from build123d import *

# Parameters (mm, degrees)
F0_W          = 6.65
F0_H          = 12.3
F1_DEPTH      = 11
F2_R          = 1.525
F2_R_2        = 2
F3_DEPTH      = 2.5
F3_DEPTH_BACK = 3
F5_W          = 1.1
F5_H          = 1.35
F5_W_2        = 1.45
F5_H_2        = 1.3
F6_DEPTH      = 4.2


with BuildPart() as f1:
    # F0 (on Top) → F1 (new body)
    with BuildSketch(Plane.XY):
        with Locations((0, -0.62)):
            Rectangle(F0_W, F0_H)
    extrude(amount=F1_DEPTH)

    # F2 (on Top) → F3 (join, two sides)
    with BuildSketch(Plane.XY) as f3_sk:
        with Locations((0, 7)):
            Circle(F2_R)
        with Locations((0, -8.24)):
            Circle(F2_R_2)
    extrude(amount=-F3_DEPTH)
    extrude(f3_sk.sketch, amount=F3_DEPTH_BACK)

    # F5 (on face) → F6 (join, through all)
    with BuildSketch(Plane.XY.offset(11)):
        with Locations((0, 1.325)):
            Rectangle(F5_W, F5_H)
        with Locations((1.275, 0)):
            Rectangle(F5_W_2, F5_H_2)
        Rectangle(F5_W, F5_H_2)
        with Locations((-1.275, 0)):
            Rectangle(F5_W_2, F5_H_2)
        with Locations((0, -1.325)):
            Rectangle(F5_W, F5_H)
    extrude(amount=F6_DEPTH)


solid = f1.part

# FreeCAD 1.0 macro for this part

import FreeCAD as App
import Part
import Sketcher
from FreeCAD import Vector

doc = App.newDocument("Part")
body = doc.addObject("PartDesign::Body", "Body")

# Sketch on XY plane
sketch1 = body.newObject("Sketcher::SketchObject", "Sketch")
sketch1.AttachmentSupport = (doc.getObject("XY_Plane"), [""])
sketch1.MapMode = "FlatFace"
sketch1.addGeometry([
    Part.LineSegment(Vector(-3, 6, 0), Vector(-3, -7, 0)),
    Part.LineSegment(Vector(-3, -7, 0), Vector(3, -7, 0)),
    Part.LineSegment(Vector(3, -7, 0), Vector(3, 6, 0)),
    Part.LineSegment(Vector(3, 6, 0), Vector(-3, 6, 0)),
], False)
sketch1.addConstraint([
    Sketcher.Constraint("Coincident", 0, 2, 1, 1),
    Sketcher.Constraint("Coincident", 1, 2, 2, 1),
    Sketcher.Constraint("Coincident", 2, 2, 3, 1),
    Sketcher.Constraint("Coincident", 3, 2, 0, 1),
    Sketcher.Constraint("Vertical", 0),
    Sketcher.Constraint("Horizontal", 1),
    Sketcher.Constraint("Vertical", 2),
    Sketcher.Constraint("Horizontal", 3),
    Sketcher.Constraint("DistanceY", 0, 2, 0, 1, 12.3),
    Sketcher.Constraint("DistanceX", 1, 1, 1, 2, 6.65),
    Sketcher.Constraint("DistanceY", 0, 2, -1, 1, 6.77),
    Sketcher.Constraint("DistanceX", 0, 2, -1, 1, 3.325),
])
pad1 = body.newObject("PartDesign::Pad", "Pad")
pad1.Profile = sketch1
pad1.Length = 11

# Sketch on XY plane
sketch2 = body.newObject("Sketcher::SketchObject", "Sketch001")
sketch2.AttachmentSupport = (doc.getObject("XY_Plane"), [""])
sketch2.MapMode = "FlatFace"
sketch2.addGeometry([
    Part.Circle(Vector(0, 7, 0), Vector(0, 0, 1), 1.5),
    Part.Circle(Vector(0, -8.2, 0), Vector(0, 0, 1), 2),
], False)
sketch2.addConstraint([
    Sketcher.Constraint("PointOnObject", 0, 3, -2),
    Sketcher.Constraint("PointOnObject", 1, 3, -2),
    Sketcher.Constraint("Diameter", 1, 4.0),
    Sketcher.Constraint("Diameter", 0, 3.05),
    Sketcher.Constraint("DistanceY", -1, 1, 0, 3, 7.0),
    Sketcher.Constraint("DistanceY", 1, 3, -1, 1, 8.24),
])
pad2 = body.newObject("PartDesign::Pad", "Pad001")
pad2.Profile = sketch2
pad2.Type = "TwoLengths"
pad2.Length = 2.5
pad2.Length2 = 3
pad2.Reversed = True

# Sketch on XY plane
sketch3 = body.newObject("Sketcher::SketchObject", "Sketch002")
sketch3.AttachmentSupport = (doc.getObject("XY_Plane"), [""])
sketch3.MapMode = "FlatFace"
sketch3.AttachmentOffset = App.Placement(Vector(0, 0, 11), App.Rotation())
sketch3.addGeometry([
    Part.LineSegment(Vector(-0.6, 2, 0), Vector(-0.6, 0.7, 0)),  # 0
    Part.LineSegment(Vector(-0.6, 0.7, 0), Vector(-2, 0.7, 0)),  # 1
    Part.LineSegment(Vector(-2, 0.7, 0), Vector(-2, -0.7, 0)),  # 2
    Part.LineSegment(Vector(-2, -0.7, 0), Vector(-0.6, -0.7, 0)),  # 3
    Part.LineSegment(Vector(-0.6, -0.7, 0), Vector(-0.6, -2, 0)),  # 4
    Part.LineSegment(Vector(-0.6, -2, 0), Vector(0.6, -2, 0)),  # 5
    Part.LineSegment(Vector(0.6, -2, 0), Vector(0.6, -0.7, 0)),  # 6
    Part.LineSegment(Vector(0.6, -0.7, 0), Vector(2, -0.7, 0)),  # 7
    Part.LineSegment(Vector(2, -0.7, 0), Vector(2, 0.7, 0)),  # 8
    Part.LineSegment(Vector(2, 0.7, 0), Vector(0.6, 0.7, 0)),  # 9
    Part.LineSegment(Vector(0.6, 0.7, 0), Vector(0.6, 2, 0)),  # 10
    Part.LineSegment(Vector(0.6, 2, 0), Vector(-0.6, 2, 0)),  # 11
], False)
sketch3.addConstraint([
    Sketcher.Constraint("Coincident", 0, 2, 1, 1),
    Sketcher.Constraint("Coincident", 1, 2, 2, 1),
    Sketcher.Constraint("Coincident", 2, 2, 3, 1),
    Sketcher.Constraint("Coincident", 3, 2, 4, 1),
    Sketcher.Constraint("Coincident", 4, 2, 5, 1),
    Sketcher.Constraint("Coincident", 5, 2, 6, 1),
    Sketcher.Constraint("Coincident", 6, 2, 7, 1),
    Sketcher.Constraint("Coincident", 7, 2, 8, 1),
    Sketcher.Constraint("Coincident", 8, 2, 9, 1),
    Sketcher.Constraint("Coincident", 9, 2, 10, 1),
    Sketcher.Constraint("Coincident", 10, 2, 11, 1),
    Sketcher.Constraint("Coincident", 11, 2, 0, 1),
    Sketcher.Constraint("Vertical", 0),
    Sketcher.Constraint("Horizontal", 1),
    Sketcher.Constraint("Vertical", 2),
    Sketcher.Constraint("Horizontal", 3),
    Sketcher.Constraint("Vertical", 4),
    Sketcher.Constraint("Horizontal", 5),
    Sketcher.Constraint("Vertical", 6),
    Sketcher.Constraint("Horizontal", 7),
    Sketcher.Constraint("Vertical", 8),
    Sketcher.Constraint("Horizontal", 9),
    Sketcher.Constraint("Vertical", 10),
    Sketcher.Constraint("Horizontal", 11),
    Sketcher.Constraint("Symmetric", 0, 2, 6, 2, -1, 1),
    Sketcher.Constraint("Symmetric", 2, 2, 8, 2, -1, 1),
    Sketcher.Constraint("Symmetric", 4, 2, 10, 2, -1, 1),
    Sketcher.Constraint("Symmetric", 3, 2, 6, 2, -2),
    Sketcher.Constraint("DistanceX", 5, 1, 5, 2, 1.1),
    Sketcher.Constraint("DistanceY", 2, 2, 2, 1, 1.3),
    Sketcher.Constraint("DistanceX", 1, 2, -1, 1, 2.0),
    Sketcher.Constraint("DistanceY", 4, 2, -1, 1, 2.0),
])
pad3 = body.newObject("PartDesign::Pad", "Pad002")
pad3.Profile = sketch3
pad3.Length = 4.2

doc.recompute()
